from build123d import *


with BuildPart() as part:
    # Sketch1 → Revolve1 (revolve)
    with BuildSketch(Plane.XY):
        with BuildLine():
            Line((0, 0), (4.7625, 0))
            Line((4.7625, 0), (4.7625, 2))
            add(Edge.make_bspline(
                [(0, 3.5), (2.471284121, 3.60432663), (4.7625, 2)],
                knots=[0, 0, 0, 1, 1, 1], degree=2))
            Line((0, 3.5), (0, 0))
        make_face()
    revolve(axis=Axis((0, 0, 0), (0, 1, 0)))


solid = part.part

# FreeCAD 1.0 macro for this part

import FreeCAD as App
import Part
import Sketcher
from FreeCAD import Vector

doc = App.newDocument("Part")
body = doc.addObject("PartDesign::Body", "Body")

# Sketch on XY plane
sketch1 = body.newObject("Sketcher::SketchObject", "Sketch")
sketch1.AttachmentSupport = (doc.getObject("XY_Plane"), [""])
sketch1.MapMode = "FlatFace"
sketch1.addGeometry([
    Part.LineSegment(Vector(0, 0, 0), Vector(4.7625, 0, 0)),
    Part.LineSegment(Vector(4.7625, 0, 0), Vector(4.7625, 2, 0)),
    Part.BSplineCurve([Vector(0, 3.5, 0), Vector(2.471284, 3.604327, 0), Vector(4.7625, 2, 0)], [3, 3], [0, 1], False, 2, [1, 1, 1], False),
    Part.LineSegment(Vector(0, 3.5, 0), Vector(0, 0, 0)),
], False)
sketch1.addConstraint([
    Sketcher.Constraint("Block", 2),
    Sketcher.Constraint("Coincident", 0, 2, 1, 1),
    Sketcher.Constraint("Coincident", 1, 2, 2, 2),
    Sketcher.Constraint("Coincident", 2, 1, 3, 1),
    Sketcher.Constraint("Coincident", 3, 2, 0, 1),
    Sketcher.Constraint("Horizontal", 0),
    Sketcher.Constraint("Vertical", 1),
    Sketcher.Constraint("Vertical", 3),
    Sketcher.Constraint("PointOnObject", 0, 2, -1),
])
revolution = body.newObject("PartDesign::Revolution", "Revolution")
revolution.Profile = sketch1
revolution.ReferenceAxis = (sketch1, ["V_Axis"])
revolution.Angle = 360

doc.recompute()
